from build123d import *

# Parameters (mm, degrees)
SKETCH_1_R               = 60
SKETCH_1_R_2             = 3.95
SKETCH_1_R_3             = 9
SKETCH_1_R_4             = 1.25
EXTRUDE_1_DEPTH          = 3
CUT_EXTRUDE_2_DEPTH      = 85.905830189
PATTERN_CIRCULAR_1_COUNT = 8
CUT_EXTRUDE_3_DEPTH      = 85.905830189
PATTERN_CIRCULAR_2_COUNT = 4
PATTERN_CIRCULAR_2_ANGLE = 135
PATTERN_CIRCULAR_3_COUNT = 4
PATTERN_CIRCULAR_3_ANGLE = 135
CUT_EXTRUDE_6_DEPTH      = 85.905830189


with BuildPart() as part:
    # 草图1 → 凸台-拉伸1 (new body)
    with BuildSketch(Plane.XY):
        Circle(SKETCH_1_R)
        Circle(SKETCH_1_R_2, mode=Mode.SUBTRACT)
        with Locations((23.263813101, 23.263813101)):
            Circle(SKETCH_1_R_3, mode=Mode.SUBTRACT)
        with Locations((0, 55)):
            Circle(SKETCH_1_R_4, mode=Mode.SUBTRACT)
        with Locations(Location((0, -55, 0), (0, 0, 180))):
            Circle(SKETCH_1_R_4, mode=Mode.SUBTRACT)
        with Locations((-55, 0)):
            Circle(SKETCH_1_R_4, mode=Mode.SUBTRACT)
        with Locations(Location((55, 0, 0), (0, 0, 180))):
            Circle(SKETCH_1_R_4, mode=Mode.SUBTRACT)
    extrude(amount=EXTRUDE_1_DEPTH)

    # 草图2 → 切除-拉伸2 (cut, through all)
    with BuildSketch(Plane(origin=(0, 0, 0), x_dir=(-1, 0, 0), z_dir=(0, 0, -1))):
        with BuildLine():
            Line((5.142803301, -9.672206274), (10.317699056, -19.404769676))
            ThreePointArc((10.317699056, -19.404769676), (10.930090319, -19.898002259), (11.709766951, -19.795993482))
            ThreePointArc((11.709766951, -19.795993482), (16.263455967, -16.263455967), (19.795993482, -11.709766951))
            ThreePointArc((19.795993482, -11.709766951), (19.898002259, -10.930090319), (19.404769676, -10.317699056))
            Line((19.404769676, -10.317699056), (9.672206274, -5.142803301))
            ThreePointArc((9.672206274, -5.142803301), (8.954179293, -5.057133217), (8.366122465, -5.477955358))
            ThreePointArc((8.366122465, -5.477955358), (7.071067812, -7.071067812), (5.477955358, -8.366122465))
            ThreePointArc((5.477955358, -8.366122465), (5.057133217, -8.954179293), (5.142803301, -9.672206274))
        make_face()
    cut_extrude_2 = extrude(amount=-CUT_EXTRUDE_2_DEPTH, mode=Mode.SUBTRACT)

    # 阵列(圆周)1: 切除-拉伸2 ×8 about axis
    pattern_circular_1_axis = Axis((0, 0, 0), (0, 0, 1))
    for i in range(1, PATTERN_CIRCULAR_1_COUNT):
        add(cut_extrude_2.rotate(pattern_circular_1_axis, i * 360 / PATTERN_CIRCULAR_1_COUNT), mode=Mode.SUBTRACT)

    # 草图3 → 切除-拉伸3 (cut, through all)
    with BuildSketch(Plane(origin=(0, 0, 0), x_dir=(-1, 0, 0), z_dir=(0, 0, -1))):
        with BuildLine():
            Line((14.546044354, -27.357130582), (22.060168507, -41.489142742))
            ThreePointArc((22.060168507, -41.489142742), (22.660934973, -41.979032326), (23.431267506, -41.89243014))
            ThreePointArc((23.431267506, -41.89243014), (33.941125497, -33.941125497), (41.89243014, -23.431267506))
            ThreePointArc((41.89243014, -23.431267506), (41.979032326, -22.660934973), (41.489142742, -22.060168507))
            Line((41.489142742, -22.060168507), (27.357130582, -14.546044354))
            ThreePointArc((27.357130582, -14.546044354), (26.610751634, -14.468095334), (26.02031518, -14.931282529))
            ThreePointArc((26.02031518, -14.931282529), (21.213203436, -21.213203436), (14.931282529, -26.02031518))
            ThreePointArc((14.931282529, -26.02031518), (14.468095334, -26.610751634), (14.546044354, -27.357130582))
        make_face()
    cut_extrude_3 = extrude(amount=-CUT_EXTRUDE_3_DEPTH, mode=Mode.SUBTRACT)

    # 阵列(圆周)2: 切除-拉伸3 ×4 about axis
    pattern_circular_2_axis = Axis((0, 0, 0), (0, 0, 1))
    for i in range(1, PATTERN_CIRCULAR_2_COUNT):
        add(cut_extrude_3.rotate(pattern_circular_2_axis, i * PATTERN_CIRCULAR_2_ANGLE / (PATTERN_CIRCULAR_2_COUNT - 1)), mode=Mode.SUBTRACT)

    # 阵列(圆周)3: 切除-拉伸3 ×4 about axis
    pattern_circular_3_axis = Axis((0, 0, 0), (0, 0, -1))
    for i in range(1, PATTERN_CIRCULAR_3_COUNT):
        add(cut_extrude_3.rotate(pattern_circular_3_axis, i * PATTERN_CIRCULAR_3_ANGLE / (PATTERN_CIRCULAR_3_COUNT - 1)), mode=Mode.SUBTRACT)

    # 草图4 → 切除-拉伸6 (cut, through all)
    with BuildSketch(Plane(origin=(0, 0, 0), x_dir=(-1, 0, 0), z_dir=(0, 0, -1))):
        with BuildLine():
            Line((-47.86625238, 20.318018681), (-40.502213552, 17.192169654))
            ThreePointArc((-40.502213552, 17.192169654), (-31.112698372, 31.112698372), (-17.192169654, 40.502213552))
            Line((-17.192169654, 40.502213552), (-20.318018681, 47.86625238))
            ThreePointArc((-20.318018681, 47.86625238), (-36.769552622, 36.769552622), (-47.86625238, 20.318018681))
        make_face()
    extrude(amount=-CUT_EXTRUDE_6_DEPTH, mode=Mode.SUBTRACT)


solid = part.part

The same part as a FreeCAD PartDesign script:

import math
import FreeCAD as App
import Part
import Sketcher
Q = App.Units.Quantity

doc = App.newDocument("Part")
body = doc.addObject("PartDesign::Body", "Body")

# Sketch on XY plane
sketch1 = body.newObject("Sketcher::SketchObject", "Sketch")
sketch1.AttachmentSupport = (doc.getObject("XY_Plane"), [""])
sketch1.MapMode = "FlatFace"
sketch1.addGeometry([
    Part.Circle(App.Vector(0, 0, 0), App.Vector(0, 0, 1), 60),  # 0
    Part.Circle(App.Vector(0, -55, 0), App.Vector(0, 0, 1), 1.2),  # 1
    Part.Circle(App.Vector(-55, 0, 0), App.Vector(0, 0, 1), 1.2),  # 2
    Part.Circle(App.Vector(0, 0, 0), App.Vector(0, 0, 1), 4),  # 3
    Part.Circle(App.Vector(23.3, 23.3, 0), App.Vector(0, 0, 1), 9),  # 4
    Part.Circle(App.Vector(55, 0, 0), App.Vector(0, 0, 1), 1.2),  # 5
    Part.Circle(App.Vector(0, 55, 0), App.Vector(0, 0, 1), 1.2),  # 6
], False)
sketch1.addConstraint([
    Sketcher.Constraint("Coincident", 0, 3, -1, 1),
    Sketcher.Constraint("Coincident", 3, 3, -1, 1),
    Sketcher.Constraint("Equal", 1, 2),
    Sketcher.Constraint("Equal", 2, 5),
    Sketcher.Constraint("Equal", 5, 6),
    Sketcher.Constraint("Symmetric", 2, 3, 5, 3, -1, 1),
    Sketcher.Constraint("Symmetric", 1, 3, 6, 3, -1, 1),
    Sketcher.Constraint("PointOnObject", 1, 3, -2),
    Sketcher.Constraint("PointOnObject", 2, 3, -1),
    Sketcher.Constraint("Diameter", 0, 120.0),
    Sketcher.Constraint("Diameter", 4, 18.0),
    Sketcher.Constraint("Diameter", 1, 2.5),
    Sketcher.Constraint("Diameter", 3, 7.9),
    Sketcher.Constraint("DistanceY", 1, 3, -1, 1, 55.0),
    Sketcher.Constraint("DistanceX", 2, 3, -1, 1, 55.0),
    Sketcher.Constraint("DistanceX", -1, 1, 4, 3, 23.263813),
    Sketcher.Constraint("DistanceY", -1, 1, 4, 3, 23.263813),
])
pad1 = body.newObject("PartDesign::Pad", "Pad")
pad1.Profile = sketch1
pad1.Length = 3

# Sketch on XY plane
sketch2 = body.newObject("Sketcher::SketchObject", "Sketch001")
sketch2.AttachmentSupport = (doc.getObject("XY_Plane"), [""])
sketch2.MapMode = "FlatFace"
sketch2.addGeometry([
    Part.LineSegment(App.Vector(-5.1, -9.7, 0), App.Vector(-10.3, -19.4, 0)),  # 0
    Part.ArcOfCircle(Part.Circle(App.Vector(-11.2, -18.9, 0), App.Vector(0, 0, 1), 1), math.radians(-121), math.radians(-28)),  # 1
    Part.ArcOfCircle(Part.Circle(App.Vector(0, 0, 0), App.Vector(0, 0, 1), 23), math.radians(-149), math.radians(-121)),  # 2
    Part.ArcOfCircle(Part.Circle(App.Vector(-18.9, -11.2, 0), App.Vector(0, 0, 1), 1), math.radians(118), math.radians(211)),  # 3
    Part.LineSegment(App.Vector(-19.4, -10.3, 0), App.Vector(-9.7, -5.1, 0)),  # 4
    Part.ArcOfCircle(Part.Circle(App.Vector(-9.2, -6, 0), App.Vector(0, 0, 1), 1), math.radians(33), math.radians(118)),  # 5
    Part.ArcOfCircle(Part.Circle(App.Vector(0, 0, 0), App.Vector(0, 0, 1), 10), math.radians(-147), math.radians(-123)),  # 6
    Part.ArcOfCircle(Part.Circle(App.Vector(-6, -9.2, 0), App.Vector(0, 0, 1), 1), math.radians(-28), math.radians(57)),  # 7
], False)
sketch2.addConstraint([
    Sketcher.Constraint("Tangent", 0, 2, 1, 2),
    Sketcher.Constraint("Tangent", 1, 1, 2, 2),
    Sketcher.Constraint("Tangent", 2, 1, 3, 2),
    Sketcher.Constraint("Tangent", 3, 1, 4, 1),
    Sketcher.Constraint("Tangent", 4, 2, 5, 2),
    Sketcher.Constraint("Tangent", 5, 1, 6, 1),
    Sketcher.Constraint("Tangent", 6, 2, 7, 2),
    Sketcher.Constraint("Tangent", 7, 1, 0, 1),
    Sketcher.Constraint("Coincident", 2, 3, -1, 1),
    Sketcher.Constraint("Coincident", 6, 3, -1, 1),
    Sketcher.Constraint("Equal", 1, 3),
    Sketcher.Constraint("Equal", 3, 5),
    Sketcher.Constraint("Equal", 5, 7),
    Sketcher.Constraint("Equal", 0, 4),
    Sketcher.Constraint("Radius", 1, 1.0),
    Sketcher.Constraint("Radius", 2, 23.0),
    Sketcher.Constraint("Radius", 6, 10.0),
    Sketcher.Constraint("Angle", 0, Q("-118 deg")),
    Sketcher.Constraint("Angle", 4, Q("28 deg")),
    Sketcher.Constraint("DistanceY", 1, 3, -1, 1, 18.935298),
])
pocket1 = body.newObject("PartDesign::Pocket", "Pocket")
pocket1.Profile = sketch2
pocket1.Type = "ThroughAll"
pocket1.Reversed = True
doc.recompute()

polarpattern = body.newObject("PartDesign::PolarPattern", "PolarPattern")
polarpattern.Originals = [pocket1]
polarpattern.Axis = (doc.getObject("Z_Axis"), [""])
polarpattern.Angle = 360
polarpattern.Occurrences = 8
body.Tip = polarpattern

# Sketch on XY plane
sketch3 = body.newObject("Sketcher::SketchObject", "Sketch002")
sketch3.AttachmentSupport = (doc.getObject("XY_Plane"), [""])
sketch3.MapMode = "FlatFace"
sketch3.addGeometry([
    Part.LineSegment(App.Vector(-14.5, -27.4, 0), App.Vector(-22.1, -41.5, 0)),  # 0
    Part.ArcOfCircle(Part.Circle(App.Vector(-22.9, -41, 0), App.Vector(0, 0, 1), 1), math.radians(-119), math.radians(-28)),  # 1
    Part.ArcOfCircle(Part.Circle(App.Vector(0, 0, 0), App.Vector(0, 0, 1), 48), math.radians(-151), math.radians(-119)),  # 2
    Part.ArcOfCircle(Part.Circle(App.Vector(-41, -22.9, 0), App.Vector(0, 0, 1), 1), math.radians(118), math.radians(209)),  # 3
    Part.LineSegment(App.Vector(-41.5, -22.1, 0), App.Vector(-27.4, -14.5, 0)),  # 4
    Part.ArcOfCircle(Part.Circle(App.Vector(-26.9, -15.4, 0), App.Vector(0, 0, 1), 1), math.radians(30), math.radians(118)),  # 5
    Part.ArcOfCircle(Part.Circle(App.Vector(0, 0, 0), App.Vector(0, 0, 1), 30), math.radians(-150), math.radians(-120)),  # 6
    Part.ArcOfCircle(Part.Circle(App.Vector(-15.4, -26.9, 0), App.Vector(0, 0, 1), 1), math.radians(-28), math.radians(60)),  # 7
], False)
sketch3.addConstraint([
    Sketcher.Constraint("Tangent", 0, 2, 1, 2),
    Sketcher.Constraint("Tangent", 1, 1, 2, 2),
    Sketcher.Constraint("Tangent", 2, 1, 3, 2),
    Sketcher.Constraint("Tangent", 3, 1, 4, 1),
    Sketcher.Constraint("Tangent", 4, 2, 5, 2),
    Sketcher.Constraint("Tangent", 5, 1, 6, 1),
    Sketcher.Constraint("Tangent", 6, 2, 7, 2),
    Sketcher.Constraint("Tangent", 7, 1, 0, 1),
    Sketcher.Constraint("Coincident", 2, 3, -1, 1),
    Sketcher.Constraint("Coincident", 6, 3, -1, 1),
    Sketcher.Constraint("Equal", 1, 3),
    Sketcher.Constraint("Equal", 3, 5),
    Sketcher.Constraint("Equal", 5, 7),
    Sketcher.Constraint("Equal", 0, 4),
    Sketcher.Constraint("Radius", 1, 1.0),
    Sketcher.Constraint("Radius", 2, 48.0),
    Sketcher.Constraint("Radius", 6, 30.0),
    Sketcher.Constraint("Angle", 0, Q("-118 deg")),
    Sketcher.Constraint("Angle", 4, Q("28 deg")),
    Sketcher.Constraint("DistanceX", 1, 1, 0, 2, 1.371099),
])
pocket2 = body.newObject("PartDesign::Pocket", "Pocket001")
pocket2.Profile = sketch3
pocket2.Type = "ThroughAll"
pocket2.Reversed = True
doc.recompute()

polarpattern2 = body.newObject("PartDesign::PolarPattern", "PolarPattern001")
polarpattern2.Originals = [pocket2]
polarpattern2.Axis = (doc.getObject("Z_Axis"), [""])
polarpattern2.Angle = 135
polarpattern2.Occurrences = 4
body.Tip = polarpattern2
doc.recompute()

polarpattern3 = body.newObject("PartDesign::PolarPattern", "PolarPattern002")
polarpattern3.Originals = [pocket2]
polarpattern3.Axis = (doc.getObject("Z_Axis"), [""])
polarpattern3.Angle = 135
polarpattern3.Occurrences = 4
polarpattern3.Reversed = True
body.Tip = polarpattern3

# Sketch on XY plane
sketch4 = body.newObject("Sketcher::SketchObject", "Sketch003")
sketch4.AttachmentSupport = (doc.getObject("XY_Plane"), [""])
sketch4.MapMode = "FlatFace"
sketch4.addGeometry([
    Part.LineSegment(App.Vector(48, 20, 0), App.Vector(41, 17, 0)),
    Part.ArcOfCircle(Part.Circle(App.Vector(0, 0, 0), App.Vector(0, 0, 1), 44), math.radians(23), math.radians(67)),
    Part.LineSegment(App.Vector(17, 41, 0), App.Vector(20, 48, 0)),
    Part.ArcOfCircle(Part.Circle(App.Vector(0, 0, 0), App.Vector(0, 0, 1), 52), math.radians(23), math.radians(67)),
], False)
sketch4.addConstraint([
    Sketcher.Constraint("Coincident", 0, 2, 1, 1),
    Sketcher.Constraint("Coincident", 1, 2, 2, 1),
    Sketcher.Constraint("Coincident", 2, 2, 3, 2),
    Sketcher.Constraint("Coincident", 3, 1, 0, 1),
    Sketcher.Constraint("Coincident", 1, 3, -1, 1),
    Sketcher.Constraint("Coincident", 3, 3, -1, 1),
    Sketcher.Constraint("Radius", 1, 44.0),
    Sketcher.Constraint("Radius", 3, 52.0),
    Sketcher.Constraint("Angle", 0, Q("-157 deg")),
    Sketcher.Constraint("Angle", 2, Q("67 deg")),
    Sketcher.Constraint("DistanceY", -1, 1, 0, 2, 17.19217),
    Sketcher.Constraint("DistanceX", -1, 1, 1, 2, 17.19217),
])
pocket3 = body.newObject("PartDesign::Pocket", "Pocket002")
pocket3.Profile = sketch4
pocket3.Type = "ThroughAll"
pocket3.Reversed = True

doc.recompute()
